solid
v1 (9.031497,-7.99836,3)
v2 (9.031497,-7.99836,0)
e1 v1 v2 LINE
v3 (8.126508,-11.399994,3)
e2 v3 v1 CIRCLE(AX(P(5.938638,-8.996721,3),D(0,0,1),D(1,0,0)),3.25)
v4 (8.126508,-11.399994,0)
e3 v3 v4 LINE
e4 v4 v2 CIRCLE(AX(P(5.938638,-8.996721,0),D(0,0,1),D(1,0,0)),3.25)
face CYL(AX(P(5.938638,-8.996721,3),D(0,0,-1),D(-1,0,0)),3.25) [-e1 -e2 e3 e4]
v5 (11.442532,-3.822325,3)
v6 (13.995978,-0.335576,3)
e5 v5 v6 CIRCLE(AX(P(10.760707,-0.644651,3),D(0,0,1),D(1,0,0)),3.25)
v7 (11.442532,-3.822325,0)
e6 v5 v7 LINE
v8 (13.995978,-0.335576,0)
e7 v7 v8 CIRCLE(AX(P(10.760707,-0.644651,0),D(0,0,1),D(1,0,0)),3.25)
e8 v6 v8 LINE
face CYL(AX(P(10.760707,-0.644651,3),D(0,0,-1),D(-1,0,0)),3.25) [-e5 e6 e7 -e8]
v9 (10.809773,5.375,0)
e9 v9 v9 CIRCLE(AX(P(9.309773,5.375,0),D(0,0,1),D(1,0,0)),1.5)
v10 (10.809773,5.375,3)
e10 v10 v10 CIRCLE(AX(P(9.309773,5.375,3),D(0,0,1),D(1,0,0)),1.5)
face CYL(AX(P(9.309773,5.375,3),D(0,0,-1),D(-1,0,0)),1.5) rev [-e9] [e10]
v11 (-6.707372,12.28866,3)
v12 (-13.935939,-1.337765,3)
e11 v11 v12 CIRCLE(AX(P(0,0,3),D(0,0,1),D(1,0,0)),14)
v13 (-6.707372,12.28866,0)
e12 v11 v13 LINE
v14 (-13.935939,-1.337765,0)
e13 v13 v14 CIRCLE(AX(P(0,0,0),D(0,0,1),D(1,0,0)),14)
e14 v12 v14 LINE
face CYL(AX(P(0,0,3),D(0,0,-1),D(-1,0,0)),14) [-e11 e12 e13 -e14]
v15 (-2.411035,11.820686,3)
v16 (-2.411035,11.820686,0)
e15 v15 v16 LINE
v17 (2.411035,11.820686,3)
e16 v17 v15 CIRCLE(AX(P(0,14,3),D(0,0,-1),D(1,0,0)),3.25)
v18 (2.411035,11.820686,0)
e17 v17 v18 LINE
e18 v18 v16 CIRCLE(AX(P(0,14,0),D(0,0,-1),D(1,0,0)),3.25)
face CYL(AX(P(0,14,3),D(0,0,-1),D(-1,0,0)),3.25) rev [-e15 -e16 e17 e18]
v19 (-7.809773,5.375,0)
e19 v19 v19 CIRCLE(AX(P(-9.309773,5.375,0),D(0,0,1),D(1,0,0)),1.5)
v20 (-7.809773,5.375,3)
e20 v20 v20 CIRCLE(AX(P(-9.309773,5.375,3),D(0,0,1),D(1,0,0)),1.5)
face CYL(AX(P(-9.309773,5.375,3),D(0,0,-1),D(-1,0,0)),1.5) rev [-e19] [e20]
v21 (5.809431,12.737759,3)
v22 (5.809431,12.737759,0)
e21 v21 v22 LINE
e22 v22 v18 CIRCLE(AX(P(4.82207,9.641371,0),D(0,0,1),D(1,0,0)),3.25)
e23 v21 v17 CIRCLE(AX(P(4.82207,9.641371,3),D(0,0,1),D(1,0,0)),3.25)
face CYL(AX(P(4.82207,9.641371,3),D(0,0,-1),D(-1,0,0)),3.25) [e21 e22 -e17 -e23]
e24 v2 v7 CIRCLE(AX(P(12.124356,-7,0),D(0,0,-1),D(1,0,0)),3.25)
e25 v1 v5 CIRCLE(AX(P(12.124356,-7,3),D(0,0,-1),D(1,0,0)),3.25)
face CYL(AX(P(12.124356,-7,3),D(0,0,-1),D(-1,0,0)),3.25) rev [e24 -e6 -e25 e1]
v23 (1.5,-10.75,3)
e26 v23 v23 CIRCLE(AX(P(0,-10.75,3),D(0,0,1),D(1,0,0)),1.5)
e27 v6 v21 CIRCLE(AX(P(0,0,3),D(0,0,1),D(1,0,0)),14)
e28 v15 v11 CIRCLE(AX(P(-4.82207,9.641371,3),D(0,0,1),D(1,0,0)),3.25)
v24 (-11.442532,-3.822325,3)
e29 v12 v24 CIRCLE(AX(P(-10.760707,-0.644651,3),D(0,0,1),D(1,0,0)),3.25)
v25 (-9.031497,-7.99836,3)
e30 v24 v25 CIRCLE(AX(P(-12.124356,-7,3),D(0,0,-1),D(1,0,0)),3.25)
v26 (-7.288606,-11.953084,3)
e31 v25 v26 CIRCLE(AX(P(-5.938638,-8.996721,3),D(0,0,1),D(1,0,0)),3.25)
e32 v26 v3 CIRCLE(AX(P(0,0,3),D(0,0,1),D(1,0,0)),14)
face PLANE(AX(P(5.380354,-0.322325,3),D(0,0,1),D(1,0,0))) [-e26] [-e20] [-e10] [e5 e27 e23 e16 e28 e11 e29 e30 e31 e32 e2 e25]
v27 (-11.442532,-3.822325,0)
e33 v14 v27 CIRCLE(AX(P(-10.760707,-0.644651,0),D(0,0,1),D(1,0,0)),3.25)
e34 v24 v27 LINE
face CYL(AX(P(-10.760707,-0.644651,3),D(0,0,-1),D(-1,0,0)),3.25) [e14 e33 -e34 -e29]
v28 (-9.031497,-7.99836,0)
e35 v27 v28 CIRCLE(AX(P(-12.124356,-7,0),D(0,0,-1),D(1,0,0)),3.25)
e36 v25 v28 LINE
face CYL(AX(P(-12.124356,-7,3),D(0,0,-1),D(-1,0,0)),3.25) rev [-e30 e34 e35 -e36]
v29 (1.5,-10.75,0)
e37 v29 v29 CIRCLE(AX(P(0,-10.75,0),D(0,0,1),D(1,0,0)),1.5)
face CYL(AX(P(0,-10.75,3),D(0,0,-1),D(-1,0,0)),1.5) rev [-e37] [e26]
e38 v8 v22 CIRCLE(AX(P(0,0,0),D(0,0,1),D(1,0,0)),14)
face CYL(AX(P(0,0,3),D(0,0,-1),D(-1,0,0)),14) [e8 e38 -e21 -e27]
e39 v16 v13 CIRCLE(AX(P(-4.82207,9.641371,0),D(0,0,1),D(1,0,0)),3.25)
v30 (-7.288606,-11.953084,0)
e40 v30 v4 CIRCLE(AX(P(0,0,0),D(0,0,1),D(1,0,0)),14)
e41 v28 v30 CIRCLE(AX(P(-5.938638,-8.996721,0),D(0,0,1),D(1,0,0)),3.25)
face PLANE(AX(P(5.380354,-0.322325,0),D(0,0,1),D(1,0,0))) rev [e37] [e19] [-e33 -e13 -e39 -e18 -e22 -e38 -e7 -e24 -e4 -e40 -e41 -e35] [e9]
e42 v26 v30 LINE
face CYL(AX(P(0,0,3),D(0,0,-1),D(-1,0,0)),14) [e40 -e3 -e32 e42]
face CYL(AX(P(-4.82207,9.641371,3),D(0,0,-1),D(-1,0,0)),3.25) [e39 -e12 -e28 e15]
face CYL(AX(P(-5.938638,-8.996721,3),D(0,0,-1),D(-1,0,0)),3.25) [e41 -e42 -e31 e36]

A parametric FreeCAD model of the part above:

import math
import FreeCAD as App
import Part
import Sketcher

V = App.Vector
Q = App.Units.Quantity

doc = App.newDocument("Part")
body = doc.addObject("PartDesign::Body", "Body")

# Sketch on XY plane
sketch1 = body.newObject("Sketcher::SketchObject", "Sketch")
sketch1.AttachmentSupport = (doc.getObject("XY_Plane"), [""])
sketch1.MapMode = "FlatFace"
sketch1.addGeometry([
    Part.ArcOfCircle(Part.Circle(V(0, 14, 0), V(0, 0, 1), 3.25), math.radians(-137.889835), math.radians(-42.110165)),  # 0
    Part.ArcOfCircle(Part.Circle(V(-4.82207, 9.641371, 0), V(0, 0, 1), 3.25), math.radians(42.110165), math.radians(125.457073)),  # 1
    Part.ArcOfCircle(Part.Circle(V(0, 0, 0), V(0, 0, 1), 14), math.radians(118.626505), math.radians(185.483243)),  # 2
    Part.ArcOfCircle(Part.Circle(V(-10.760707, -0.644651, 0), V(0, 0, 1), 3.25), math.radians(-167.686189), math.radians(-102.110165)),  # 3
    Part.ArcOfCircle(Part.Circle(V(-12.124356, -7, 0), V(0, 0, 1), 3.25), math.radians(-17.889835), math.radians(77.889835)),  # 4
    Part.ArcOfCircle(Part.Circle(V(-5.938638, -8.996721, 0), V(0, 0, 1), 3.25), math.radians(162.110165), math.radians(245.457073)),  # 5
    Part.ArcOfCircle(Part.Circle(V(0, 0, 0), V(0, 0, 1), 14), math.radians(-121.373495), math.radians(-54.516757)),  # 6
    Part.ArcOfCircle(Part.Circle(V(5.938638, -8.996721, 0), V(0, 0, 1), 3.25), math.radians(-47.686189), math.radians(17.889835)),  # 7
    Part.ArcOfCircle(Part.Circle(V(12.124356, -7, 0), V(0, 0, 1), 3.25), math.radians(102.110165), math.radians(197.889835)),  # 8
    Part.ArcOfCircle(Part.Circle(V(10.760707, -0.644651, 0), V(0, 0, 1), 3.25), math.radians(-77.889835), math.radians(5.457073)),  # 9
    Part.ArcOfCircle(Part.Circle(V(0, 0, 0), V(0, 0, 1), 14), math.radians(-1.373495), math.radians(65.483244)),  # 10
    Part.ArcOfCircle(Part.Circle(V(4.82207, 9.641371, 0), V(0, 0, 1), 3.25), math.radians(72.313811), math.radians(137.889835)),  # 11
    Part.Circle(V(0, -10.75, 0), V(0, 0, 1), 1.5),  # 12
    Part.Circle(V(9.309773, 5.375, 0), V(0, 0, 1), 1.5),  # 13
    Part.Circle(V(-9.309773, 5.375, 0), V(0, 0, 1), 1.5),  # 14
], False)
sketch1.addConstraint([
    Sketcher.Constraint("Tangent", 0, 1, 1, 1),
    Sketcher.Constraint("Coincident", 1, 2, 2, 1),
    Sketcher.Constraint("Coincident", 2, 2, 3, 1),
    Sketcher.Constraint("Tangent", 3, 2, 4, 2),
    Sketcher.Constraint("Tangent", 4, 1, 5, 1),
    Sketcher.Constraint("Coincident", 5, 2, 6, 1),
    Sketcher.Constraint("Coincident", 6, 2, 7, 1),
    Sketcher.Constraint("Tangent", 7, 2, 8, 2),
    Sketcher.Constraint("Tangent", 8, 1, 9, 1),
    Sketcher.Constraint("Coincident", 9, 2, 10, 1),
    Sketcher.Constraint("Coincident", 10, 2, 11, 1),
    Sketcher.Constraint("Tangent", 11, 2, 0, 2),
    Sketcher.Constraint("Coincident", 2, 3, -1, 1),
    Sketcher.Constraint("Coincident", 6, 3, -1, 1),
    Sketcher.Constraint("Coincident", 10, 3, -1, 1),
    Sketcher.Constraint("Equal", 0, 1),
    Sketcher.Constraint("Equal", 1, 3),
    Sketcher.Constraint("Equal", 3, 4),
    Sketcher.Constraint("Equal", 4, 5),
    Sketcher.Constraint("Equal", 2, 6),
    Sketcher.Constraint("Equal", 5, 7),
    Sketcher.Constraint("Equal", 7, 8),
    Sketcher.Constraint("Equal", 8, 9),
    Sketcher.Constraint("Equal", 6, 10),
    Sketcher.Constraint("Equal", 9, 11),
    Sketcher.Constraint("Equal", 12, 13),
    Sketcher.Constraint("Equal", 13, 14),
    Sketcher.Constraint("Symmetric", 5, 3, 7, 3, -2),
    Sketcher.Constraint("Symmetric", 3, 3, 9, 3, -2),
    Sketcher.Constraint("Symmetric", 1, 3, 11, 3, -2),
    Sketcher.Constraint("Symmetric", 13, 3, 14, 3, -2),
    Sketcher.Constraint("PointOnObject", 12, 3, -2),
    Sketcher.Constraint("Diameter", 12, Q("3 mm")),
    Sketcher.Constraint("Radius", 2, Q("14 mm")),
    Sketcher.Constraint("Radius", 0, Q("3.25 mm")),
    Sketcher.Constraint("DistanceY", -1, 1, 0, 3, Q("14 mm")),
    Sketcher.Constraint("DistanceY", 4, 3, -1, 1, Q("7 mm")),
    Sketcher.Constraint("DistanceY", 12, 3, -1, 1, Q("10.75 mm")),
    Sketcher.Constraint("DistanceY", -1, 1, 13, 3, Q("5.375 mm")),
    Sketcher.Constraint("DistanceX", 1, 2, 1, 3, Q("1.885302 mm")),
    Sketcher.Constraint("DistanceX", 14, 3, 1, 2, Q("2.602402 mm")),
    Sketcher.Constraint("DistanceX", 2, 2, 5, 3, Q("7.997301 mm")),
    Sketcher.Constraint("DistanceX", 6, 2, 9, 3, Q("2.6342 mm")),
    Sketcher.Constraint("DistanceY", 3, 3, -1, 1, Q("0.644651 mm")),
])
pad1 = body.newObject("PartDesign::Pad", "Pad")
pad1.Profile = sketch1
pad1.Length = 3

doc.recompute()
